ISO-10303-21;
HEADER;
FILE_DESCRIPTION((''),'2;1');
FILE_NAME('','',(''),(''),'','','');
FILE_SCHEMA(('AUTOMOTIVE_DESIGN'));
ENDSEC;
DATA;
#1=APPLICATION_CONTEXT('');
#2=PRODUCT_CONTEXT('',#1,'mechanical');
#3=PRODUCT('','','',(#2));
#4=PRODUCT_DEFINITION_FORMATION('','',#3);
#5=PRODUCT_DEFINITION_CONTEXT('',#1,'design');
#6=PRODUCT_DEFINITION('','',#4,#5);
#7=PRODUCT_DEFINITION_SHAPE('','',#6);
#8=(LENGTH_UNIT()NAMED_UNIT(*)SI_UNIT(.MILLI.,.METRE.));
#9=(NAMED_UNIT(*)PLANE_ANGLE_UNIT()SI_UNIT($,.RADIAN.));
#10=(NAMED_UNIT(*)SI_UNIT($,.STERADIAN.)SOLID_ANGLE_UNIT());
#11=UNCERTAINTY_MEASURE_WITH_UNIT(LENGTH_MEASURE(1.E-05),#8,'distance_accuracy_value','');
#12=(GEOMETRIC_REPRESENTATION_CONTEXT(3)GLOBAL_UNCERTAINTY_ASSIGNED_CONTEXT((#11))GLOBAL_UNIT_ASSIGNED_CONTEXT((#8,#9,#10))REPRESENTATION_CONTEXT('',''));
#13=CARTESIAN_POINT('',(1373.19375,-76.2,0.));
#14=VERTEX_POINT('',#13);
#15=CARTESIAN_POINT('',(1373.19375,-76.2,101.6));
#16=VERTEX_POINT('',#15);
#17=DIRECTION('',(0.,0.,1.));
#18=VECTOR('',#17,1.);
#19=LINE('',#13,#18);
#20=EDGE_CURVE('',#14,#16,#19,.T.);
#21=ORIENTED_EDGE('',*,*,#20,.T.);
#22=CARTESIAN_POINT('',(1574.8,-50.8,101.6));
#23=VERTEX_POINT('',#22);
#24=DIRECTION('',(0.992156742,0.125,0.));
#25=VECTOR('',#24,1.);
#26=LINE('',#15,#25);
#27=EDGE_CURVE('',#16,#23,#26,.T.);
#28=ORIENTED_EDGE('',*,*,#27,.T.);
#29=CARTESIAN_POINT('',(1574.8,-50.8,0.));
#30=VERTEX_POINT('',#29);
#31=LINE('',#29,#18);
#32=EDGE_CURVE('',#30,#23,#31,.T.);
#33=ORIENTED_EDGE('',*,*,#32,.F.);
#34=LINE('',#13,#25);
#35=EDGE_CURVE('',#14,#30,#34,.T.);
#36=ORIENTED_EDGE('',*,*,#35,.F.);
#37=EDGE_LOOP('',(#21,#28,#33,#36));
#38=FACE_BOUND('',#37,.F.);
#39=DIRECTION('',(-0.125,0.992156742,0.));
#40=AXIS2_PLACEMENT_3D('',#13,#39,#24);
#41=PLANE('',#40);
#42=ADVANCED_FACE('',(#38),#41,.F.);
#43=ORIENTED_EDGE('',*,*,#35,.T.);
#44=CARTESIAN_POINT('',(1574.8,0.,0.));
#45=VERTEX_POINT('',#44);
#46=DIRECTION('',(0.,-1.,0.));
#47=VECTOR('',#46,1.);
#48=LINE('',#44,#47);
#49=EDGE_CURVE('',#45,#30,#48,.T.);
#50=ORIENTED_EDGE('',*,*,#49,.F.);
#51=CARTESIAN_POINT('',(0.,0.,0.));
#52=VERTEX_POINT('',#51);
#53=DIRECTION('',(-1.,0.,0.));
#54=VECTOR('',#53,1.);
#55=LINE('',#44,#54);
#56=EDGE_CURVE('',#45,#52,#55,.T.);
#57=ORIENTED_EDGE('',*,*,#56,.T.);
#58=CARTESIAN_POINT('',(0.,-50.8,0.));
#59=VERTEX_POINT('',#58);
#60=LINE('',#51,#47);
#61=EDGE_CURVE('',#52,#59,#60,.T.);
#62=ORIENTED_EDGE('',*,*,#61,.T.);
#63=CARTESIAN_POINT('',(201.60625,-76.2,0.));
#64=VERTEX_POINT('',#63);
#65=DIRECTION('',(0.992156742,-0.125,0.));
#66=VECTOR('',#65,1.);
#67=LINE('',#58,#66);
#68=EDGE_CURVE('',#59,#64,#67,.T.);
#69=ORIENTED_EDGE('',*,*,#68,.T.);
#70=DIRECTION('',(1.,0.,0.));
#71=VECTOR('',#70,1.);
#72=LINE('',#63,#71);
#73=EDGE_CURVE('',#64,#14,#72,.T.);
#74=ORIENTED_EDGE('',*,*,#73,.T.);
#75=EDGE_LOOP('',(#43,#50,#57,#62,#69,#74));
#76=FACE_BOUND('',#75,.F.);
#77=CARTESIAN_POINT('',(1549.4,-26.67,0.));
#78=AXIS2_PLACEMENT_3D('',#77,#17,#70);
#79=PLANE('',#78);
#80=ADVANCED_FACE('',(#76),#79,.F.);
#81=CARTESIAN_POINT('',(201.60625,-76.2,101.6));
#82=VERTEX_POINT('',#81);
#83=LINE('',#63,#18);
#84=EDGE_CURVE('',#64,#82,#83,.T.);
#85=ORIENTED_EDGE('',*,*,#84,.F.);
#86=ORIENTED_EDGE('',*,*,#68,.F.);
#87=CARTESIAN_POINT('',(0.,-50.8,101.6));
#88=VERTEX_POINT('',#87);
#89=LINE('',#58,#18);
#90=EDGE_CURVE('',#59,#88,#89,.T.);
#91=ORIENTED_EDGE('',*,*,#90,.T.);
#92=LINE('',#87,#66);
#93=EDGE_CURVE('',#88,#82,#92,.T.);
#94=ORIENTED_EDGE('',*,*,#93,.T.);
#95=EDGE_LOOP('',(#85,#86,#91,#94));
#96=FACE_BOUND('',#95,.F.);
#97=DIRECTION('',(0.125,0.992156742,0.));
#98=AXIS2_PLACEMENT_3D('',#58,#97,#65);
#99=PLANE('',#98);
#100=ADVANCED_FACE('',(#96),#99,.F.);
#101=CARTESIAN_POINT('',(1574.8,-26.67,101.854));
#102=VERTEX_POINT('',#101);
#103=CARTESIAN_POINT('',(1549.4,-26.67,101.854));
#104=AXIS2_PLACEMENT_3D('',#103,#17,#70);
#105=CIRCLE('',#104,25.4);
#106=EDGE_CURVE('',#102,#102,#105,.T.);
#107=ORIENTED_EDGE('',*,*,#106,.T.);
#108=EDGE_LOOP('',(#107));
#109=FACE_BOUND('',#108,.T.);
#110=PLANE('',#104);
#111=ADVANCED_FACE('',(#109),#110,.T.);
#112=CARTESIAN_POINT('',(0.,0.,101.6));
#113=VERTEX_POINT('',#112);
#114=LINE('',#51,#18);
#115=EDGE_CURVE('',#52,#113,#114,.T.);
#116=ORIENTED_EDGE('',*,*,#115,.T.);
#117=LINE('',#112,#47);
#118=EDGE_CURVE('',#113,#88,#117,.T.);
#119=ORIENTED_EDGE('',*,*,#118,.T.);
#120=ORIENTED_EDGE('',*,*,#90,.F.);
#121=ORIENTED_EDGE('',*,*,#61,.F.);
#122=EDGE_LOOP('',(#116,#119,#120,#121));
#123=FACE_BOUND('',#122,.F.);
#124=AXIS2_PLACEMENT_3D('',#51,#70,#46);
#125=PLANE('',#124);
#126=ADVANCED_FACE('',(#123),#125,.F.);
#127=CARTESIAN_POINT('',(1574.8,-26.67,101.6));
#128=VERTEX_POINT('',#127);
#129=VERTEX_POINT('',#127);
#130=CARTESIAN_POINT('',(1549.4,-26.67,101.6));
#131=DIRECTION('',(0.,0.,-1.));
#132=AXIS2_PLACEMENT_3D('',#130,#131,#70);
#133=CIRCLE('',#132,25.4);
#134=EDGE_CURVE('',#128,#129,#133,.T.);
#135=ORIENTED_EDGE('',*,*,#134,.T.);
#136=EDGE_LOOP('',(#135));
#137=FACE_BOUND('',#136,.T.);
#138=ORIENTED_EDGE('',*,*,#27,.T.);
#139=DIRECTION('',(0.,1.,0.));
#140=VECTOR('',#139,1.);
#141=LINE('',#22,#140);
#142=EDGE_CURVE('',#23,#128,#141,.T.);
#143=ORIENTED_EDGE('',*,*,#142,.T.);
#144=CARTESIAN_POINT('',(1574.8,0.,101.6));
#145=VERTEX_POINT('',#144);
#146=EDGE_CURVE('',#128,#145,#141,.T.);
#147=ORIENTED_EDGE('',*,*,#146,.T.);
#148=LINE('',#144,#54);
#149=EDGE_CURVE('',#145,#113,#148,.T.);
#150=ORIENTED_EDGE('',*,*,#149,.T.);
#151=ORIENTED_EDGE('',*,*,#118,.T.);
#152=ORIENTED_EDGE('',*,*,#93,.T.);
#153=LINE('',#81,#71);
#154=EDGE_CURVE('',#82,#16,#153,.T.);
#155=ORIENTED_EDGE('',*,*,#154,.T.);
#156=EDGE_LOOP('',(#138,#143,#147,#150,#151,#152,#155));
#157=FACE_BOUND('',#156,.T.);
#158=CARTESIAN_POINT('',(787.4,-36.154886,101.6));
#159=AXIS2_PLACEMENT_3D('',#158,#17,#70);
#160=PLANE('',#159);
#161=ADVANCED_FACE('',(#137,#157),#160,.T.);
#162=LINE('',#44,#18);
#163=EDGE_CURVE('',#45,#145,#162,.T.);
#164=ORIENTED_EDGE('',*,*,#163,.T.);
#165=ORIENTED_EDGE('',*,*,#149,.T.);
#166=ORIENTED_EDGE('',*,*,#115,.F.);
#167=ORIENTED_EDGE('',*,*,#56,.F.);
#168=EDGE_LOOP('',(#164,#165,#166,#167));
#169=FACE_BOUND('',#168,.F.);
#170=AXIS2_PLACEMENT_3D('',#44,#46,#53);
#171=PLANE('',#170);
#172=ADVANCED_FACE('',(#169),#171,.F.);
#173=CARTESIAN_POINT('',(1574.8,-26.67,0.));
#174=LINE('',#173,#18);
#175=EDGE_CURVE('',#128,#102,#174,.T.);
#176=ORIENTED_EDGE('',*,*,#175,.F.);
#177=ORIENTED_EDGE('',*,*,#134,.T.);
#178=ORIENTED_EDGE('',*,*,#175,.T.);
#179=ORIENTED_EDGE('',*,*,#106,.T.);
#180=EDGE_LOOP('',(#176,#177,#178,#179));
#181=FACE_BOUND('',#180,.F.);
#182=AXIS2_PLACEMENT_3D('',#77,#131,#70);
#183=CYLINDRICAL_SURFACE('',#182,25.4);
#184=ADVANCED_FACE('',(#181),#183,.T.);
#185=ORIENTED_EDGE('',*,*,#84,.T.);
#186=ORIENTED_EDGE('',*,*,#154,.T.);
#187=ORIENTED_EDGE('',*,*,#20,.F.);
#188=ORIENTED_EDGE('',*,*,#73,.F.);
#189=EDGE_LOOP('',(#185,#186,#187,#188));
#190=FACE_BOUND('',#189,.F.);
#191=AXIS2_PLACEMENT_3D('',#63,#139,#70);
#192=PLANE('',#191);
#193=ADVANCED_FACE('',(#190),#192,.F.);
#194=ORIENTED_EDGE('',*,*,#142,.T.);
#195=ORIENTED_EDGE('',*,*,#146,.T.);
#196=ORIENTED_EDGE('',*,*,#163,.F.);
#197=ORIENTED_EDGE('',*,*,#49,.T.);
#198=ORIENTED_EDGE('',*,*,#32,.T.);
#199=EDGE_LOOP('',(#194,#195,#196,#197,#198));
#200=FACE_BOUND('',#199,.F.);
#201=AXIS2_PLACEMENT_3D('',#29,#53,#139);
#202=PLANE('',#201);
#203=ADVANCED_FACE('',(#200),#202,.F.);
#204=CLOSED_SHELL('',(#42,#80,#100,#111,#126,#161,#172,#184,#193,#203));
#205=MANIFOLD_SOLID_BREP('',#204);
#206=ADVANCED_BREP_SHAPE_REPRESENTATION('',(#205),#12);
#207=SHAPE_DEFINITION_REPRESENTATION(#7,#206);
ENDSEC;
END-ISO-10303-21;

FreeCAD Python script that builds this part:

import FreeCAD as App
import Part
import Sketcher
Q = App.Units.Quantity


def add_polygon(sketch, points):
    """Adds a closed chain of lines whose ends are joined by coincident constraints."""
    first, n = sketch.GeometryCount, len(points)
    for a, b in zip(points, points[1:] + points[:1]):
        sketch.addGeometry(Part.LineSegment(App.Vector(*a, 0), App.Vector(*b, 0)), False)
    for i in range(n):
        sketch.addConstraint(Sketcher.Constraint("Coincident", first + i, 2, first + (i + 1) % n, 1))

doc = App.newDocument("Part")
body = doc.addObject("PartDesign::Body", "Body")

# Sketch on XY plane
sketch1 = doc.addObject("Sketcher::SketchObject", "Sketch")
body.addObject(sketch1)
sketch1.AttachmentSupport = (doc.XY_Plane, [""])
sketch1.MapMode = "FlatFace"
add_polygon(sketch1, [(1574.8, -50.8), (1574.8, 0), (0, 0), (0, -50.8), (201.60625, -76.2), (1373.19375, -76.2)])  # lines 0-5
sketch1.addConstraint(Sketcher.Constraint("Vertical", 0))
sketch1.addConstraint(Sketcher.Constraint("Horizontal", 1))
sketch1.addConstraint(Sketcher.Constraint("Vertical", 2))
sketch1.addConstraint(Sketcher.Constraint("Horizontal", 4))
sketch1.addConstraint(Sketcher.Constraint("Coincident", 1, 2, -1, 1))
sketch1.addConstraint(Sketcher.Constraint("Horizontal", 2, 2, 5, 2))
sketch1.addConstraint(Sketcher.Constraint("Equal", 3, 5))
sketch1.addConstraint(Sketcher.Constraint("DistanceX", 1, 2, 1, 1, Q("62 in")))
sketch1.addConstraint(Sketcher.Constraint("DistanceY", 0, 1, 0, 2, Q("2 in")))
sketch1.addConstraint(Sketcher.Constraint("Distance", 3, Q("8 in")))
sketch1.addConstraint(Sketcher.Constraint("DistanceY", 3, 2, -1, 1, Q("3 in")))
pad1 = doc.addObject("PartDesign::Pad", "Pad")
body.addObject(pad1)
pad1.Profile = sketch1
pad1.Length = Q("4 in")

# Sketch on XY plane
sketch2 = doc.addObject("Sketcher::SketchObject", "Sketch001")
body.addObject(sketch2)
sketch2.AttachmentSupport = (doc.XY_Plane, [""])
sketch2.MapMode = "FlatFace"
sketch2.addGeometry(Part.Circle(App.Vector(1549.4, -26.67, 0), App.Vector(0, 0, 1), 25.4), False)
sketch2.addConstraint(Sketcher.Constraint("Diameter", 0, Q("2 in")))
sketch2.addConstraint(Sketcher.Constraint("DistanceX", -1, 1, 0, 3, Q("61 in")))
sketch2.addConstraint(Sketcher.Constraint("DistanceY", 0, 3, -1, 1, Q("1.05 in")))
pad2 = doc.addObject("PartDesign::Pad", "Pad001")
body.addObject(pad2)
pad2.Profile = sketch2
pad2.Length = Q("4.01 in")

doc.recompute()
